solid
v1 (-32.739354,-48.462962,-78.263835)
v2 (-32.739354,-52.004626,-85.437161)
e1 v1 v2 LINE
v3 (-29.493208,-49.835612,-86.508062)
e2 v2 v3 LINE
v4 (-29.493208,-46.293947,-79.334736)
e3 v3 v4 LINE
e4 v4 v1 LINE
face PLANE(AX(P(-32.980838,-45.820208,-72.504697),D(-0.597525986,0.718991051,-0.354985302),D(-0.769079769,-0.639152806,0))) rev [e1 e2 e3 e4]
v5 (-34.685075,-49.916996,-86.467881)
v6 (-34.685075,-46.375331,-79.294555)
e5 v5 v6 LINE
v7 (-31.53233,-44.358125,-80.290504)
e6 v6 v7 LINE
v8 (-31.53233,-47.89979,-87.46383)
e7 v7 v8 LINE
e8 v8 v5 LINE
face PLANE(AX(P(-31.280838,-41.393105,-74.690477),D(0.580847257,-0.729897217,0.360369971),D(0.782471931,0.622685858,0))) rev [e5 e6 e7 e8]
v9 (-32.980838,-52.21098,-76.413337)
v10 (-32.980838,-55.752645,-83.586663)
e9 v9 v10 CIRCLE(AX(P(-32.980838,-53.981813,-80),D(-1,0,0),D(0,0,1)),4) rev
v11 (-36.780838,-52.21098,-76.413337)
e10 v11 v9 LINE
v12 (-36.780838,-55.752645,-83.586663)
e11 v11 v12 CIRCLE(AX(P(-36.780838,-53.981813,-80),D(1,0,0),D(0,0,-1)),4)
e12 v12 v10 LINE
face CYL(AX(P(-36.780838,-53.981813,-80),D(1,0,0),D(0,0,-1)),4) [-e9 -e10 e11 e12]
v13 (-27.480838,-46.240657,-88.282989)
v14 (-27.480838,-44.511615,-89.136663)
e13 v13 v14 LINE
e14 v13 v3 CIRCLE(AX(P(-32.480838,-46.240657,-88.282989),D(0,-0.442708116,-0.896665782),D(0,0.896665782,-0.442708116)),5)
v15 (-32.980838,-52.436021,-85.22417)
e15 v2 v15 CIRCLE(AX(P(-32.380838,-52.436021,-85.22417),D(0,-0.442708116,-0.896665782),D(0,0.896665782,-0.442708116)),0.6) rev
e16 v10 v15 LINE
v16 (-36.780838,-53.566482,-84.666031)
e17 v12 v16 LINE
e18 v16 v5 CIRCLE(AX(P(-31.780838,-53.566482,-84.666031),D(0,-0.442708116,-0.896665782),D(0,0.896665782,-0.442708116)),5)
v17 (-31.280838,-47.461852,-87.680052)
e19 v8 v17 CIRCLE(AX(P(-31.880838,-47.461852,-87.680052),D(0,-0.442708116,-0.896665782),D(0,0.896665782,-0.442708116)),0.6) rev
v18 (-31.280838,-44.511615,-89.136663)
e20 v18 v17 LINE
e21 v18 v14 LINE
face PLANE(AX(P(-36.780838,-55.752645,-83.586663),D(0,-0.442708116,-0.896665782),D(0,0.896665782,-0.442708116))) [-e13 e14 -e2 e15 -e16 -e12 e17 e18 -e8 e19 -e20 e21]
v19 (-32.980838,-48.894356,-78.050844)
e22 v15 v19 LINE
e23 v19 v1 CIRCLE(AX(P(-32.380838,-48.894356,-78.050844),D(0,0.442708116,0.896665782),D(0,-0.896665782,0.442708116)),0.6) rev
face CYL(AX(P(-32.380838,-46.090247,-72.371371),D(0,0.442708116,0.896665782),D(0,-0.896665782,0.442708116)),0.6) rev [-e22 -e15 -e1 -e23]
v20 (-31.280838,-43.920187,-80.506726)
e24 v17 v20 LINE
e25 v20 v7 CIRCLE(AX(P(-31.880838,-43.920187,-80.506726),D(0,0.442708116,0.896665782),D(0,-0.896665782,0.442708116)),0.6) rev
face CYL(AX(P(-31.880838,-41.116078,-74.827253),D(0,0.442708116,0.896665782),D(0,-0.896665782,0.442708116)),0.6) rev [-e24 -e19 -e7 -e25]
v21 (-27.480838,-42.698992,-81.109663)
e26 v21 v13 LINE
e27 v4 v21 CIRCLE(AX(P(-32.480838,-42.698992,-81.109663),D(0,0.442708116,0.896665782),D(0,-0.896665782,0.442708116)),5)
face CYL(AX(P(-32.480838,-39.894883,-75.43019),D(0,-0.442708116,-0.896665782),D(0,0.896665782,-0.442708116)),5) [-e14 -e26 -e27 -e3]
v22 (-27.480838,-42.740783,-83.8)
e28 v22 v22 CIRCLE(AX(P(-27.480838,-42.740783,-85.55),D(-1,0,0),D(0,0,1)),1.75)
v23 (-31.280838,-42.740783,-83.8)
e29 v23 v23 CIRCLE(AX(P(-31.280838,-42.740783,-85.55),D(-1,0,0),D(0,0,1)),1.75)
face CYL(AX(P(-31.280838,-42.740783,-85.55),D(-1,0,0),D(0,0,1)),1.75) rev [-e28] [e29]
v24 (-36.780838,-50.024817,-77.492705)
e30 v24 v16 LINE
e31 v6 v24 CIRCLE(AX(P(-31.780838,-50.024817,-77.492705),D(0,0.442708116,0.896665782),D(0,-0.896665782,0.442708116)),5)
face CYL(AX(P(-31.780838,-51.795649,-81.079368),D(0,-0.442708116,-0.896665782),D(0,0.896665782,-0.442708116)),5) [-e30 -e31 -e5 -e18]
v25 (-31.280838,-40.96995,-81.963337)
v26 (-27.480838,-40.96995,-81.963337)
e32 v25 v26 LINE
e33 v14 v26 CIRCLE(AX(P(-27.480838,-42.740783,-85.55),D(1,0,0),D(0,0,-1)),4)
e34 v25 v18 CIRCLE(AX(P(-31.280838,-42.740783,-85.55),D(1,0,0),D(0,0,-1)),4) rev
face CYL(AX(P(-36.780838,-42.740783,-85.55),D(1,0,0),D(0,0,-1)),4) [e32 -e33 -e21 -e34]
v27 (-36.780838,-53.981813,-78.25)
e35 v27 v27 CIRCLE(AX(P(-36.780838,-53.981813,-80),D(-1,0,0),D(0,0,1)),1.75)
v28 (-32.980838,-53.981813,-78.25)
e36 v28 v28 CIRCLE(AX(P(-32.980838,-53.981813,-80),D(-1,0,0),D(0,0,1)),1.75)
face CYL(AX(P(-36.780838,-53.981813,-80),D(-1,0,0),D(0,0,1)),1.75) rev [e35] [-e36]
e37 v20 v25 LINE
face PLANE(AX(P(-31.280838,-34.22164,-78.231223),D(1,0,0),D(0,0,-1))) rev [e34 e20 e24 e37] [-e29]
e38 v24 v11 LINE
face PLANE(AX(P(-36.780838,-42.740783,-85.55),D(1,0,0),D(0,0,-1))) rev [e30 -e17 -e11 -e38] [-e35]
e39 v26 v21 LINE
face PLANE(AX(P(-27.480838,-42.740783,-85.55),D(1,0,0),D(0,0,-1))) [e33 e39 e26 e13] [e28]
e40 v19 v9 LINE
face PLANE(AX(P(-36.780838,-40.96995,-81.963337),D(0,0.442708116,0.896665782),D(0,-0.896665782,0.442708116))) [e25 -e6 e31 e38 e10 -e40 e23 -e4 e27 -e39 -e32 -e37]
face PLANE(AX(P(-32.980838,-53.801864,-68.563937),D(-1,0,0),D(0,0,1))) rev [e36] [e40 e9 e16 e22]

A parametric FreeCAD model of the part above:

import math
import FreeCAD as App
import Part
import Sketcher
from FreeCAD import Vector


def edges_at(feature, points):
    """Names of the edges that pass closest to the given points."""
    edges = feature.Shape.Edges
    near = lambda p: min(range(len(edges)), key=lambda i: edges[i].distToShape(Part.Vertex(*p))[0])
    return sorted({f"Edge{near(p) + 1}" for p in points})

doc = App.newDocument("Part")
params = doc.addObject("Spreadsheet::Sheet", "Params")
for row, (alias, value) in enumerate([
    ("sketch1_radius", "4 mm"),
    ("pad1_length", "9.3 mm"),
    ("sketch2_width", "5.5 mm"),
    ("sketch3_height", "13 mm"),
    ("sketch3_width", "5.5 mm"),
    ("sketch4_diameter", "3.5 mm"),
    ("hole_diameter", "3.5 mm"),
    ("sketch5_diameter", "3.5 mm"),
    ("hole2_diameter", "3.5 mm"),
    ("fillet_radius", "0.6 mm"),
    ("fillet2_radius", "5 mm"),
], start=1):
    params.set(f"A{row}", alias)
    params.set(f"B{row}", "=" + value)
    params.setAlias(f"B{row}", alias)

body = doc.addObject("PartDesign::Body", "Body")

# Sketch on YZ plane
sketch1 = body.newObject("Sketcher::SketchObject", "Sketch")
sketch1.AttachmentSupport = (doc.getObject("YZ_Plane"), [""])
sketch1.MapMode = "FlatFace"
sketch1.AttachmentOffset = App.Placement(Vector(0, 0, -27.480838), App.Rotation())
sketch1.addGeometry(Part.LineSegment(Vector(-41, -82, 0), Vector(-52.2, -76.4, 0)), False)
sketch1.addGeometry(Part.ArcOfCircle(Part.Circle(Vector(-54, -80, 0), Vector(0, 0, 1), 4), math.radians(64), math.radians(244)), False)
sketch1.addGeometry(Part.LineSegment(Vector(-55.8, -83.6, 0), Vector(-44.5, -89.1, 0)), False)
sketch1.addGeometry(Part.ArcOfCircle(Part.Circle(Vector(-42.7, -85.5, 0), Vector(0, 0, 1), 4), math.radians(-116), math.radians(64)), False)
sketch1.addConstraint(Sketcher.Constraint("Tangent", 0, 2, 1, 1))
sketch1.addConstraint(Sketcher.Constraint("Tangent", 1, 2, 2, 1))
sketch1.addConstraint(Sketcher.Constraint("Tangent", 2, 2, 3, 1))
sketch1.addConstraint(Sketcher.Constraint("Tangent", 3, 2, 0, 1))
sketch1.addConstraint(Sketcher.Constraint("Equal", 1, 3))
sketch1.addConstraint(Sketcher.Constraint("Radius", 1, 4.0))
sketch1.addConstraint(Sketcher.Constraint("DistanceY", 1, 3, -1, 1, 80.0))
sketch1.addConstraint(Sketcher.Constraint("DistanceY", 3, 3, -1, 1, 85.55))
sketch1.addConstraint(Sketcher.Constraint("DistanceX", 0, 2, -1, 1, 52.21098))
sketch1.addConstraint(Sketcher.Constraint("DistanceX", 3, 2, -1, 1, 40.96995))
sketch1.setExpression("Constraints[5]", "Params.sketch1_radius")
pad1 = body.newObject("PartDesign::Pad", "Pad")
pad1.Profile = sketch1
pad1.setExpression("Length", "Params.pad1_length")
pad1.Reversed = True

# Sketch on an angled plane
sketch2 = body.newObject("Sketcher::SketchObject", "Sketch001")
sketch2.Placement = App.Placement(Vector(0, -44.107651, -89.336111), App.Rotation(Vector(-1, 0, 0), Vector(0, 0.896665782, -0.442708116), Vector(0, -0.442708116, -0.896665782), "ZXY"))
sketch2.addGeometry(Part.LineSegment(Vector(31, 4, 0), Vector(31, -4, 0)), False)
sketch2.addGeometry(Part.LineSegment(Vector(31, -4, 0), Vector(37, -8, 0)), False)
sketch2.addGeometry(Part.LineSegment(Vector(37, -8, 0), Vector(37, 4, 0)), False)
sketch2.addGeometry(Part.LineSegment(Vector(37, 4, 0), Vector(31, 4, 0)), False)
sketch2.addConstraint(Sketcher.Constraint("Coincident", 0, 2, 1, 1))
sketch2.addConstraint(Sketcher.Constraint("Coincident", 1, 2, 2, 1))
sketch2.addConstraint(Sketcher.Constraint("Coincident", 2, 2, 3, 1))
sketch2.addConstraint(Sketcher.Constraint("Coincident", 3, 2, 0, 1))
sketch2.addConstraint(Sketcher.Constraint("Vertical", 0))
sketch2.addConstraint(Sketcher.Constraint("Vertical", 2))
sketch2.addConstraint(Sketcher.Constraint("Horizontal", 3))
sketch2.addConstraint(Sketcher.Constraint("DistanceX", 3, 2, 3, 1, 5.5))
sketch2.addConstraint(Sketcher.Constraint("DistanceY", 0, 2, -1, 1, 4.049701))
sketch2.addConstraint(Sketcher.Constraint("DistanceY", 0, 2, 0, 1, 7.997925))
sketch2.addConstraint(Sketcher.Constraint("DistanceY", 2, 1, 2, 2, 11.922508))
sketch2.addConstraint(Sketcher.Constraint("DistanceX", -1, 1, 0, 2, 31.280838))
sketch2.setExpression("Constraints[7]", "Params.sketch2_width")
pocket1 = body.newObject("PartDesign::Pocket", "Pocket")
pocket1.Profile = sketch2
pocket1.Type = "ThroughAll"

# Sketch on an angled plane
sketch3 = body.newObject("Sketcher::SketchObject", "Sketch002")
sketch3.Placement = App.Placement(Vector(0, -44.107651, -89.336111), App.Rotation(Vector(-1, 0, 0), Vector(0, 0.896665782, -0.442708116), Vector(0, -0.442708116, -0.896665782), "ZXY"))
sketch3.addGeometry(Part.LineSegment(Vector(33, -18, 0), Vector(33, -9, 0)), False)
sketch3.addGeometry(Part.LineSegment(Vector(33, -9, 0), Vector(27, -5, 0)), False)
sketch3.addGeometry(Part.LineSegment(Vector(27, -5, 0), Vector(27, -18, 0)), False)
sketch3.addGeometry(Part.LineSegment(Vector(27, -18, 0), Vector(33, -18, 0)), False)
sketch3.addConstraint(Sketcher.Constraint("Coincident", 0, 2, 1, 1))
sketch3.addConstraint(Sketcher.Constraint("Coincident", 1, 2, 2, 1))
sketch3.addConstraint(Sketcher.Constraint("Coincident", 2, 2, 3, 1))
sketch3.addConstraint(Sketcher.Constraint("Coincident", 3, 2, 0, 1))
sketch3.addConstraint(Sketcher.Constraint("Vertical", 0))
sketch3.addConstraint(Sketcher.Constraint("Vertical", 2))
sketch3.addConstraint(Sketcher.Constraint("Horizontal", 3))
sketch3.addConstraint(Sketcher.Constraint("DistanceY", 2, 2, 2, 1, 13.0))
sketch3.addConstraint(Sketcher.Constraint("DistanceX", 3, 1, 3, 2, 5.5))
sketch3.addConstraint(Sketcher.Constraint("DistanceY", 0, 1, 0, 2, 8.901484))
sketch3.addConstraint(Sketcher.Constraint("DistanceX", -1, 1, 0, 2, 32.980838))
sketch3.addConstraint(Sketcher.Constraint("DistanceY", 1, 2, -1, 1, 4.888479))
sketch3.setExpression("Constraints[7]", "Params.sketch3_height")
sketch3.setExpression("Constraints[8]", "Params.sketch3_width")
pocket2 = body.newObject("PartDesign::Pocket", "Pocket001")
pocket2.Profile = sketch3
pocket2.Type = "ThroughAll"

# Sketch on YZ plane
sketch4 = body.newObject("Sketcher::SketchObject", "Sketch003")
sketch4.AttachmentSupport = (doc.getObject("YZ_Plane"), [""])
sketch4.MapMode = "FlatFace"
sketch4.AttachmentOffset = App.Placement(Vector(0, 0, -36.780838), App.Rotation())
sketch4.addGeometry(Part.Circle(Vector(-54, -80, 0), Vector(0, 0, 1), 1.8), False)
sketch4.addConstraint(Sketcher.Constraint("Diameter", 0, 3.5))
sketch4.addConstraint(Sketcher.Constraint("DistanceY", 0, 3, -1, 1, 80.0))
sketch4.addConstraint(Sketcher.Constraint("DistanceX", 0, 3, -1, 1, 53.981813))
sketch4.setExpression("Constraints[0]", "Params.sketch4_diameter")
doc.recompute()
hole = body.newObject("PartDesign::Hole", "Hole")
hole.Profile = sketch4
hole.ThreadType = "None"
hole.setExpression("Diameter", "Params.hole_diameter")
hole.DepthType = "ThroughAll"
hole.Reversed = True

# Sketch on YZ plane
sketch5 = body.newObject("Sketcher::SketchObject", "Sketch004")
sketch5.AttachmentSupport = (doc.getObject("YZ_Plane"), [""])
sketch5.MapMode = "FlatFace"
sketch5.AttachmentOffset = App.Placement(Vector(0, 0, -31.280838), App.Rotation())
sketch5.addGeometry(Part.Circle(Vector(-42.7, -85.5, 0), Vector(0, 0, 1), 1.8), False)
sketch5.addConstraint(Sketcher.Constraint("Diameter", 0, 3.5))
sketch5.addConstraint(Sketcher.Constraint("DistanceY", 0, 3, -1, 1, 85.55))
sketch5.addConstraint(Sketcher.Constraint("DistanceX", 0, 3, -1, 1, 42.740783))
sketch5.setExpression("Constraints[0]", "Params.sketch5_diameter")
doc.recompute()
hole2 = body.newObject("PartDesign::Hole", "Hole001")
hole2.Profile = sketch5
hole2.ThreadType = "None"
hole2.setExpression("Diameter", "Params.hole2_diameter")
hole2.DepthType = "ThroughAll"
hole2.Reversed = True
doc.recompute()

fillet = body.newObject("PartDesign::Fillet", "Fillet")
fillet.Base = (hole2, edges_at(hole2, [(-31.281, -45.968, -83.957), (-32.981, -50.395, -81.771)]))
fillet.setExpression("Radius", "Params.fillet_radius")
doc.recompute()

fillet2 = body.newObject("PartDesign::Fillet", "Fillet001")
fillet2.Base = (fillet, edges_at(fillet, [(-36.781, -49.487, -82.219), (-27.481, -46.72, -83.585)]))
fillet2.setExpression("Radius", "Params.fillet2_radius")

doc.recompute()
